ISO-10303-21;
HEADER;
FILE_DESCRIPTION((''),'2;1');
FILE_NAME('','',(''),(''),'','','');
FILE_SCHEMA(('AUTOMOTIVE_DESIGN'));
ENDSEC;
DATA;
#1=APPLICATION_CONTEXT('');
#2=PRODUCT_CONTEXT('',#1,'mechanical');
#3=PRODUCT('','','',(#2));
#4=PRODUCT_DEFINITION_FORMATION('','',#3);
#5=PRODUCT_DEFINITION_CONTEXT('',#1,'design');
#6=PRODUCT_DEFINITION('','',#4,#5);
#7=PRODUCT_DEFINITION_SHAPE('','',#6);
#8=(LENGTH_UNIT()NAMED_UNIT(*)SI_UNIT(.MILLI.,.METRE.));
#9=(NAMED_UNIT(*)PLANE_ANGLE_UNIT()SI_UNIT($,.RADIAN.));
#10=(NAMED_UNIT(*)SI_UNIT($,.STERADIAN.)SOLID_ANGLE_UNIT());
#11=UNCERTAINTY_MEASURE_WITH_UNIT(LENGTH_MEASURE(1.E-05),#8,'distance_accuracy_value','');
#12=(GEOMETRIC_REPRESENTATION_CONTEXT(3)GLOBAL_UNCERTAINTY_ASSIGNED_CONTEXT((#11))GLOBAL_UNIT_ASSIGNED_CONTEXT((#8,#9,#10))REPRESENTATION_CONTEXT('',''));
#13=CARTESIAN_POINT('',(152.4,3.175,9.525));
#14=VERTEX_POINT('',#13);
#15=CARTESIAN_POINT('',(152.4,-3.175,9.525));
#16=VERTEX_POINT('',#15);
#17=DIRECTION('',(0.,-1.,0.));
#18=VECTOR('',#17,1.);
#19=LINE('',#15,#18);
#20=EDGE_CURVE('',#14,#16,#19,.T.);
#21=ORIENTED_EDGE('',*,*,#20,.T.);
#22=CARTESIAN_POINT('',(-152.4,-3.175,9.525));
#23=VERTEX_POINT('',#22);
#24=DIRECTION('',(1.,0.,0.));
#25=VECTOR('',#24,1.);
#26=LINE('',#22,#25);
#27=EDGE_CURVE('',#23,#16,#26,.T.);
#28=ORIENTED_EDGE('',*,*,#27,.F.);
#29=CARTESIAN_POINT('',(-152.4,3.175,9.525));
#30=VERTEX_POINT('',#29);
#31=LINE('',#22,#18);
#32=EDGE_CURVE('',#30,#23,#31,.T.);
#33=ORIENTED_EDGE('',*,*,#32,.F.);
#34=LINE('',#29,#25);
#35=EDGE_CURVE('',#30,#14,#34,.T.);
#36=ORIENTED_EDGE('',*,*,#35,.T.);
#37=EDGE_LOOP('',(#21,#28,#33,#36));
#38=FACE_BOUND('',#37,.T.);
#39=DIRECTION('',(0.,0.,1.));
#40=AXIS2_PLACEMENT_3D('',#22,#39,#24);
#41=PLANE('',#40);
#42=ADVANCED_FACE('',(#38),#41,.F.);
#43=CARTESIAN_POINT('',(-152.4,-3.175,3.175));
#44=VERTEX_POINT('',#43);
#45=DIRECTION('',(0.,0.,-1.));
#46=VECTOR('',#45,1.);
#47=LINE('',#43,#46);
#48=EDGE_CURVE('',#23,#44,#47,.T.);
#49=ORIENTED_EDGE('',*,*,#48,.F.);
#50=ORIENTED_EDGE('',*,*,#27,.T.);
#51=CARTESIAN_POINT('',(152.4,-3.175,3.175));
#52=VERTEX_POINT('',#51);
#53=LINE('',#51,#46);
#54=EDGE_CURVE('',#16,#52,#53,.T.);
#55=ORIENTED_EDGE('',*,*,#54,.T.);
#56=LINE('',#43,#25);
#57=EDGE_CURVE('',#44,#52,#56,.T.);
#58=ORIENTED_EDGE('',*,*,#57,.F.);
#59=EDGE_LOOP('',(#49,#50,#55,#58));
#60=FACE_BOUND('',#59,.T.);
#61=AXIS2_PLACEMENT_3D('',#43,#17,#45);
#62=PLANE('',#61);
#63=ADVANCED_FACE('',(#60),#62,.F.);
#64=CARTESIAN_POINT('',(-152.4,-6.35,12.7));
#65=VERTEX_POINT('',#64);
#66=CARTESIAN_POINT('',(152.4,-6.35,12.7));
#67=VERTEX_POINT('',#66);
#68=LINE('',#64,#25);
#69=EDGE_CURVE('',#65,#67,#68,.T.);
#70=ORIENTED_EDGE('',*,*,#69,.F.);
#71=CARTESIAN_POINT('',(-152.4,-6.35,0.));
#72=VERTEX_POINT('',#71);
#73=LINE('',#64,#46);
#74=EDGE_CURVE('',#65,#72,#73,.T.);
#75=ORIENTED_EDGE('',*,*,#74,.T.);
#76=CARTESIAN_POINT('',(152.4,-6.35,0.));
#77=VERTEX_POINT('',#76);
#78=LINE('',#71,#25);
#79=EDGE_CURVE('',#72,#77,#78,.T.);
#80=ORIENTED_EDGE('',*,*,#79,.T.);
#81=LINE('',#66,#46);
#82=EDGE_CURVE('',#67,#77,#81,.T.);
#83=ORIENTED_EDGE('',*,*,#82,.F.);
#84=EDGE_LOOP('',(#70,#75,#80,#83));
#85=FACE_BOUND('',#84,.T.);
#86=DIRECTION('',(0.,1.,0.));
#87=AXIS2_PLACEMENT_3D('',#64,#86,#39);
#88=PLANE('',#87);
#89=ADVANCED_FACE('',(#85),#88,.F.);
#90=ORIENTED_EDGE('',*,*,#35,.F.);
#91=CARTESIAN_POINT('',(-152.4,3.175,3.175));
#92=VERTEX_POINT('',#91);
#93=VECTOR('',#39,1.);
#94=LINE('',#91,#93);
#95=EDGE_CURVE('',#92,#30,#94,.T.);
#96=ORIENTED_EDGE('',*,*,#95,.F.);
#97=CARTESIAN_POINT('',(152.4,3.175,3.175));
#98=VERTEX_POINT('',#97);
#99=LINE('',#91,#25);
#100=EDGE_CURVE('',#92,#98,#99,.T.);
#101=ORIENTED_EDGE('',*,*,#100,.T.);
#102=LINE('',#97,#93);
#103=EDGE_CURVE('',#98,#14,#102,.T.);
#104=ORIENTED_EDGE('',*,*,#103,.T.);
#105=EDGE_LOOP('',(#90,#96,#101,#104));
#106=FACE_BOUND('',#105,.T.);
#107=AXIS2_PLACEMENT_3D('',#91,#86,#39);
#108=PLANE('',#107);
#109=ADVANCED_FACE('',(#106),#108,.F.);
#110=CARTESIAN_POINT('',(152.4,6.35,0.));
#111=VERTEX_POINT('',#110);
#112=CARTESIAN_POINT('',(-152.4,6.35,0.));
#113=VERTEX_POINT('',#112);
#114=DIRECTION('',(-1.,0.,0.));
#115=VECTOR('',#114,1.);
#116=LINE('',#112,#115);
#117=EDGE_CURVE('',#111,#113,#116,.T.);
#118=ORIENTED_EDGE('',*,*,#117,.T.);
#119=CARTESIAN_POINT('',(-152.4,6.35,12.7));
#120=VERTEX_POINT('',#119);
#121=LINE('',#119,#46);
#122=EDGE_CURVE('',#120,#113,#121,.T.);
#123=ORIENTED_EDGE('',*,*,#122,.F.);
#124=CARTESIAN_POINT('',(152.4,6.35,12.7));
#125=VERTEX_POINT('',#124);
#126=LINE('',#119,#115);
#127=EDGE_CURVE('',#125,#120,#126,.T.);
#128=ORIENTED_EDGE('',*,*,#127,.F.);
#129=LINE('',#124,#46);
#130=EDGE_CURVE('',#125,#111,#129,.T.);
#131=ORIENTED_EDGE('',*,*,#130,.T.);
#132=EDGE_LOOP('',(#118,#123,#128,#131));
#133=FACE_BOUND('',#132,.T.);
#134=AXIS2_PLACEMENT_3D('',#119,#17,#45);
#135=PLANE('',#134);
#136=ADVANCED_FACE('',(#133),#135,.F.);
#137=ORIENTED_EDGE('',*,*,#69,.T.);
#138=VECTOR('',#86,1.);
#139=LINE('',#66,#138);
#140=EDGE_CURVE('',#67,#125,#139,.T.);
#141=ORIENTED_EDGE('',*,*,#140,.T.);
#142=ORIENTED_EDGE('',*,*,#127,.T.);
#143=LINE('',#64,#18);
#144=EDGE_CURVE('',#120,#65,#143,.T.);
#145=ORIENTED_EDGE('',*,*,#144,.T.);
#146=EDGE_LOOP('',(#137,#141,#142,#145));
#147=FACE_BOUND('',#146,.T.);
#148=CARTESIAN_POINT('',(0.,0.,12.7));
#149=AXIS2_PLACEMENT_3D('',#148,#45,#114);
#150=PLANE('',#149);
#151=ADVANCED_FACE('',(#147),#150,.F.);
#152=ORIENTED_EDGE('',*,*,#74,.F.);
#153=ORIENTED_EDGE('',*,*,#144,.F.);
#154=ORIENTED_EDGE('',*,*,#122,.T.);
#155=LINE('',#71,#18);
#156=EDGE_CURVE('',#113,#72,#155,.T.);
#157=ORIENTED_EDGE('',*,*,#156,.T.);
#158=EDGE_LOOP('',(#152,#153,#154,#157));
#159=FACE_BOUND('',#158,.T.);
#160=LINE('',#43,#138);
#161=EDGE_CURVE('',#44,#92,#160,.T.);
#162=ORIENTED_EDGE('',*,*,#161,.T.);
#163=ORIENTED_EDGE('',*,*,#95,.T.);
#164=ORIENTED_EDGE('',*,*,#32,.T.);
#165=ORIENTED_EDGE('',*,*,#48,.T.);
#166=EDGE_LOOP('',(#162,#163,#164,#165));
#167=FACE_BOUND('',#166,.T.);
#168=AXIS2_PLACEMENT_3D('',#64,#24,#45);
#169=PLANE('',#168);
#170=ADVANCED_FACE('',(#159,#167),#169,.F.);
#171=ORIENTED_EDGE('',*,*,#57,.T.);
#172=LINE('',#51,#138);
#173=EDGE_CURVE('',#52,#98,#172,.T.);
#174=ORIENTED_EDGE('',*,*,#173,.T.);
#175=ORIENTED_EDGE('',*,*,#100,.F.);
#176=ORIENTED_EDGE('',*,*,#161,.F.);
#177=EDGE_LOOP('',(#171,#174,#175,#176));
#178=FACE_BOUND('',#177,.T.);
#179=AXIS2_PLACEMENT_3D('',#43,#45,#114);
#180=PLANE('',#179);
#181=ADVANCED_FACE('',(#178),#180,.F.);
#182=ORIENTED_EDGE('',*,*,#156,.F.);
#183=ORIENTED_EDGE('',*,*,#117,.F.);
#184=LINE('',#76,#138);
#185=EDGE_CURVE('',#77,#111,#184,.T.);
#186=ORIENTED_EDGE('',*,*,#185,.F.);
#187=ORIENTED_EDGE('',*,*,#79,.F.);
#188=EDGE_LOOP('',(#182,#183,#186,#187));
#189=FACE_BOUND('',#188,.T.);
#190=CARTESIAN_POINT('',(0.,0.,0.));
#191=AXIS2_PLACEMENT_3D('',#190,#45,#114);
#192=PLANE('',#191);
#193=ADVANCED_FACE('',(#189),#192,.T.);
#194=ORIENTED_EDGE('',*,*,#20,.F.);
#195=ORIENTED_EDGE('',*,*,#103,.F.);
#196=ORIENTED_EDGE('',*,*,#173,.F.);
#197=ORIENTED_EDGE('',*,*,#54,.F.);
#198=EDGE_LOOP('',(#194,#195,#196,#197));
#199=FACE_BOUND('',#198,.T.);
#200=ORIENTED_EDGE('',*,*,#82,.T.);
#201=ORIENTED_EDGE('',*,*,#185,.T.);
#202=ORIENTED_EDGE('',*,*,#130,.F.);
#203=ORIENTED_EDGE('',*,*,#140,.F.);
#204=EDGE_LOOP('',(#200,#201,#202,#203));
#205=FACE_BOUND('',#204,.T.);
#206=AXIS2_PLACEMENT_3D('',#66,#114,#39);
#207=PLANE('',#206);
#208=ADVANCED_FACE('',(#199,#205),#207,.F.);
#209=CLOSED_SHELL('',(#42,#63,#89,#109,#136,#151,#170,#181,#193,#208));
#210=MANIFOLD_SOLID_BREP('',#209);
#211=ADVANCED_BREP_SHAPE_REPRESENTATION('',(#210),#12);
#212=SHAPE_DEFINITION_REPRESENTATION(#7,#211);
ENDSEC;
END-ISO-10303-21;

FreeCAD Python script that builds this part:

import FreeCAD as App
import Part
import Sketcher

V = App.Vector
Q = App.Units.Quantity


def add_polygon(sketch, points):
    """Adds a closed chain of lines whose ends are joined by coincident constraints."""
    first, n = sketch.GeometryCount, len(points)
    for a, b in zip(points, points[1:] + points[:1]):
        sketch.addGeometry(Part.LineSegment(App.Vector(*a, 0), App.Vector(*b, 0)), False)
    for i in range(n):
        sketch.addConstraint(Sketcher.Constraint("Coincident", first + i, 2, first + (i + 1) % n, 1))

doc = App.newDocument("Part")
body = doc.addObject("PartDesign::Body", "Body")

# Sketch on XY plane
sketch1 = body.newObject("Sketcher::SketchObject", "Sketch")
sketch1.AttachmentSupport = (doc.getObject("XY_Plane"), [""])
sketch1.MapMode = "FlatFace"
add_polygon(sketch1, [(-152.4, 6.35), (-152.4, -6.35), (152.4, -6.35), (152.4, 6.35)])  # lines 0-3
sketch1.addConstraint([
    Sketcher.Constraint("Vertical", 0),
    Sketcher.Constraint("Horizontal", 1),
    Sketcher.Constraint("Vertical", 2),
    Sketcher.Constraint("Horizontal", 3),
    Sketcher.Constraint("Symmetric", 0, 2, 2, 2, -1, 1),
    Sketcher.Constraint("DistanceX", 1, 1, 1, 2, Q("12 in")),
    Sketcher.Constraint("DistanceY", 0, 2, 0, 1, Q("0.5 in")),
])
pad1 = body.newObject("PartDesign::Pad", "Pad")
pad1.Profile = sketch1
pad1.Length = Q("0.5 in")

# Sketch on YZ plane
sketch2 = body.newObject("Sketcher::SketchObject", "Sketch001")
sketch2.AttachmentSupport = (doc.getObject("YZ_Plane"), [""])
sketch2.MapMode = "FlatFace"
sketch2.AttachmentOffset = App.Placement(V(0, 0, 6 * 25.4), App.Rotation())
add_polygon(sketch2, [(3.175, 9.525), (-3.175, 9.525), (-3.175, 3.175), (3.175, 3.175)])  # lines 0-3
sketch2.addConstraint([
    Sketcher.Constraint("Horizontal", 0),
    Sketcher.Constraint("Vertical", 1),
    Sketcher.Constraint("Horizontal", 2),
    Sketcher.Constraint("Vertical", 3),
    Sketcher.Constraint("Equal", 2, 1),
    Sketcher.Constraint("DistanceX", 0, 2, 0, 1, Q("0.25 in")),
    Sketcher.Constraint("DistanceX", 0, 2, -1, 1, Q("0.125 in")),
    Sketcher.Constraint("DistanceY", -1, 1, 0, 2, Q("0.375 in")),
])
pocket1 = body.newObject("PartDesign::Pocket", "Pocket")
pocket1.Profile = sketch2
pocket1.Type = "ThroughAll"

doc.recompute()
